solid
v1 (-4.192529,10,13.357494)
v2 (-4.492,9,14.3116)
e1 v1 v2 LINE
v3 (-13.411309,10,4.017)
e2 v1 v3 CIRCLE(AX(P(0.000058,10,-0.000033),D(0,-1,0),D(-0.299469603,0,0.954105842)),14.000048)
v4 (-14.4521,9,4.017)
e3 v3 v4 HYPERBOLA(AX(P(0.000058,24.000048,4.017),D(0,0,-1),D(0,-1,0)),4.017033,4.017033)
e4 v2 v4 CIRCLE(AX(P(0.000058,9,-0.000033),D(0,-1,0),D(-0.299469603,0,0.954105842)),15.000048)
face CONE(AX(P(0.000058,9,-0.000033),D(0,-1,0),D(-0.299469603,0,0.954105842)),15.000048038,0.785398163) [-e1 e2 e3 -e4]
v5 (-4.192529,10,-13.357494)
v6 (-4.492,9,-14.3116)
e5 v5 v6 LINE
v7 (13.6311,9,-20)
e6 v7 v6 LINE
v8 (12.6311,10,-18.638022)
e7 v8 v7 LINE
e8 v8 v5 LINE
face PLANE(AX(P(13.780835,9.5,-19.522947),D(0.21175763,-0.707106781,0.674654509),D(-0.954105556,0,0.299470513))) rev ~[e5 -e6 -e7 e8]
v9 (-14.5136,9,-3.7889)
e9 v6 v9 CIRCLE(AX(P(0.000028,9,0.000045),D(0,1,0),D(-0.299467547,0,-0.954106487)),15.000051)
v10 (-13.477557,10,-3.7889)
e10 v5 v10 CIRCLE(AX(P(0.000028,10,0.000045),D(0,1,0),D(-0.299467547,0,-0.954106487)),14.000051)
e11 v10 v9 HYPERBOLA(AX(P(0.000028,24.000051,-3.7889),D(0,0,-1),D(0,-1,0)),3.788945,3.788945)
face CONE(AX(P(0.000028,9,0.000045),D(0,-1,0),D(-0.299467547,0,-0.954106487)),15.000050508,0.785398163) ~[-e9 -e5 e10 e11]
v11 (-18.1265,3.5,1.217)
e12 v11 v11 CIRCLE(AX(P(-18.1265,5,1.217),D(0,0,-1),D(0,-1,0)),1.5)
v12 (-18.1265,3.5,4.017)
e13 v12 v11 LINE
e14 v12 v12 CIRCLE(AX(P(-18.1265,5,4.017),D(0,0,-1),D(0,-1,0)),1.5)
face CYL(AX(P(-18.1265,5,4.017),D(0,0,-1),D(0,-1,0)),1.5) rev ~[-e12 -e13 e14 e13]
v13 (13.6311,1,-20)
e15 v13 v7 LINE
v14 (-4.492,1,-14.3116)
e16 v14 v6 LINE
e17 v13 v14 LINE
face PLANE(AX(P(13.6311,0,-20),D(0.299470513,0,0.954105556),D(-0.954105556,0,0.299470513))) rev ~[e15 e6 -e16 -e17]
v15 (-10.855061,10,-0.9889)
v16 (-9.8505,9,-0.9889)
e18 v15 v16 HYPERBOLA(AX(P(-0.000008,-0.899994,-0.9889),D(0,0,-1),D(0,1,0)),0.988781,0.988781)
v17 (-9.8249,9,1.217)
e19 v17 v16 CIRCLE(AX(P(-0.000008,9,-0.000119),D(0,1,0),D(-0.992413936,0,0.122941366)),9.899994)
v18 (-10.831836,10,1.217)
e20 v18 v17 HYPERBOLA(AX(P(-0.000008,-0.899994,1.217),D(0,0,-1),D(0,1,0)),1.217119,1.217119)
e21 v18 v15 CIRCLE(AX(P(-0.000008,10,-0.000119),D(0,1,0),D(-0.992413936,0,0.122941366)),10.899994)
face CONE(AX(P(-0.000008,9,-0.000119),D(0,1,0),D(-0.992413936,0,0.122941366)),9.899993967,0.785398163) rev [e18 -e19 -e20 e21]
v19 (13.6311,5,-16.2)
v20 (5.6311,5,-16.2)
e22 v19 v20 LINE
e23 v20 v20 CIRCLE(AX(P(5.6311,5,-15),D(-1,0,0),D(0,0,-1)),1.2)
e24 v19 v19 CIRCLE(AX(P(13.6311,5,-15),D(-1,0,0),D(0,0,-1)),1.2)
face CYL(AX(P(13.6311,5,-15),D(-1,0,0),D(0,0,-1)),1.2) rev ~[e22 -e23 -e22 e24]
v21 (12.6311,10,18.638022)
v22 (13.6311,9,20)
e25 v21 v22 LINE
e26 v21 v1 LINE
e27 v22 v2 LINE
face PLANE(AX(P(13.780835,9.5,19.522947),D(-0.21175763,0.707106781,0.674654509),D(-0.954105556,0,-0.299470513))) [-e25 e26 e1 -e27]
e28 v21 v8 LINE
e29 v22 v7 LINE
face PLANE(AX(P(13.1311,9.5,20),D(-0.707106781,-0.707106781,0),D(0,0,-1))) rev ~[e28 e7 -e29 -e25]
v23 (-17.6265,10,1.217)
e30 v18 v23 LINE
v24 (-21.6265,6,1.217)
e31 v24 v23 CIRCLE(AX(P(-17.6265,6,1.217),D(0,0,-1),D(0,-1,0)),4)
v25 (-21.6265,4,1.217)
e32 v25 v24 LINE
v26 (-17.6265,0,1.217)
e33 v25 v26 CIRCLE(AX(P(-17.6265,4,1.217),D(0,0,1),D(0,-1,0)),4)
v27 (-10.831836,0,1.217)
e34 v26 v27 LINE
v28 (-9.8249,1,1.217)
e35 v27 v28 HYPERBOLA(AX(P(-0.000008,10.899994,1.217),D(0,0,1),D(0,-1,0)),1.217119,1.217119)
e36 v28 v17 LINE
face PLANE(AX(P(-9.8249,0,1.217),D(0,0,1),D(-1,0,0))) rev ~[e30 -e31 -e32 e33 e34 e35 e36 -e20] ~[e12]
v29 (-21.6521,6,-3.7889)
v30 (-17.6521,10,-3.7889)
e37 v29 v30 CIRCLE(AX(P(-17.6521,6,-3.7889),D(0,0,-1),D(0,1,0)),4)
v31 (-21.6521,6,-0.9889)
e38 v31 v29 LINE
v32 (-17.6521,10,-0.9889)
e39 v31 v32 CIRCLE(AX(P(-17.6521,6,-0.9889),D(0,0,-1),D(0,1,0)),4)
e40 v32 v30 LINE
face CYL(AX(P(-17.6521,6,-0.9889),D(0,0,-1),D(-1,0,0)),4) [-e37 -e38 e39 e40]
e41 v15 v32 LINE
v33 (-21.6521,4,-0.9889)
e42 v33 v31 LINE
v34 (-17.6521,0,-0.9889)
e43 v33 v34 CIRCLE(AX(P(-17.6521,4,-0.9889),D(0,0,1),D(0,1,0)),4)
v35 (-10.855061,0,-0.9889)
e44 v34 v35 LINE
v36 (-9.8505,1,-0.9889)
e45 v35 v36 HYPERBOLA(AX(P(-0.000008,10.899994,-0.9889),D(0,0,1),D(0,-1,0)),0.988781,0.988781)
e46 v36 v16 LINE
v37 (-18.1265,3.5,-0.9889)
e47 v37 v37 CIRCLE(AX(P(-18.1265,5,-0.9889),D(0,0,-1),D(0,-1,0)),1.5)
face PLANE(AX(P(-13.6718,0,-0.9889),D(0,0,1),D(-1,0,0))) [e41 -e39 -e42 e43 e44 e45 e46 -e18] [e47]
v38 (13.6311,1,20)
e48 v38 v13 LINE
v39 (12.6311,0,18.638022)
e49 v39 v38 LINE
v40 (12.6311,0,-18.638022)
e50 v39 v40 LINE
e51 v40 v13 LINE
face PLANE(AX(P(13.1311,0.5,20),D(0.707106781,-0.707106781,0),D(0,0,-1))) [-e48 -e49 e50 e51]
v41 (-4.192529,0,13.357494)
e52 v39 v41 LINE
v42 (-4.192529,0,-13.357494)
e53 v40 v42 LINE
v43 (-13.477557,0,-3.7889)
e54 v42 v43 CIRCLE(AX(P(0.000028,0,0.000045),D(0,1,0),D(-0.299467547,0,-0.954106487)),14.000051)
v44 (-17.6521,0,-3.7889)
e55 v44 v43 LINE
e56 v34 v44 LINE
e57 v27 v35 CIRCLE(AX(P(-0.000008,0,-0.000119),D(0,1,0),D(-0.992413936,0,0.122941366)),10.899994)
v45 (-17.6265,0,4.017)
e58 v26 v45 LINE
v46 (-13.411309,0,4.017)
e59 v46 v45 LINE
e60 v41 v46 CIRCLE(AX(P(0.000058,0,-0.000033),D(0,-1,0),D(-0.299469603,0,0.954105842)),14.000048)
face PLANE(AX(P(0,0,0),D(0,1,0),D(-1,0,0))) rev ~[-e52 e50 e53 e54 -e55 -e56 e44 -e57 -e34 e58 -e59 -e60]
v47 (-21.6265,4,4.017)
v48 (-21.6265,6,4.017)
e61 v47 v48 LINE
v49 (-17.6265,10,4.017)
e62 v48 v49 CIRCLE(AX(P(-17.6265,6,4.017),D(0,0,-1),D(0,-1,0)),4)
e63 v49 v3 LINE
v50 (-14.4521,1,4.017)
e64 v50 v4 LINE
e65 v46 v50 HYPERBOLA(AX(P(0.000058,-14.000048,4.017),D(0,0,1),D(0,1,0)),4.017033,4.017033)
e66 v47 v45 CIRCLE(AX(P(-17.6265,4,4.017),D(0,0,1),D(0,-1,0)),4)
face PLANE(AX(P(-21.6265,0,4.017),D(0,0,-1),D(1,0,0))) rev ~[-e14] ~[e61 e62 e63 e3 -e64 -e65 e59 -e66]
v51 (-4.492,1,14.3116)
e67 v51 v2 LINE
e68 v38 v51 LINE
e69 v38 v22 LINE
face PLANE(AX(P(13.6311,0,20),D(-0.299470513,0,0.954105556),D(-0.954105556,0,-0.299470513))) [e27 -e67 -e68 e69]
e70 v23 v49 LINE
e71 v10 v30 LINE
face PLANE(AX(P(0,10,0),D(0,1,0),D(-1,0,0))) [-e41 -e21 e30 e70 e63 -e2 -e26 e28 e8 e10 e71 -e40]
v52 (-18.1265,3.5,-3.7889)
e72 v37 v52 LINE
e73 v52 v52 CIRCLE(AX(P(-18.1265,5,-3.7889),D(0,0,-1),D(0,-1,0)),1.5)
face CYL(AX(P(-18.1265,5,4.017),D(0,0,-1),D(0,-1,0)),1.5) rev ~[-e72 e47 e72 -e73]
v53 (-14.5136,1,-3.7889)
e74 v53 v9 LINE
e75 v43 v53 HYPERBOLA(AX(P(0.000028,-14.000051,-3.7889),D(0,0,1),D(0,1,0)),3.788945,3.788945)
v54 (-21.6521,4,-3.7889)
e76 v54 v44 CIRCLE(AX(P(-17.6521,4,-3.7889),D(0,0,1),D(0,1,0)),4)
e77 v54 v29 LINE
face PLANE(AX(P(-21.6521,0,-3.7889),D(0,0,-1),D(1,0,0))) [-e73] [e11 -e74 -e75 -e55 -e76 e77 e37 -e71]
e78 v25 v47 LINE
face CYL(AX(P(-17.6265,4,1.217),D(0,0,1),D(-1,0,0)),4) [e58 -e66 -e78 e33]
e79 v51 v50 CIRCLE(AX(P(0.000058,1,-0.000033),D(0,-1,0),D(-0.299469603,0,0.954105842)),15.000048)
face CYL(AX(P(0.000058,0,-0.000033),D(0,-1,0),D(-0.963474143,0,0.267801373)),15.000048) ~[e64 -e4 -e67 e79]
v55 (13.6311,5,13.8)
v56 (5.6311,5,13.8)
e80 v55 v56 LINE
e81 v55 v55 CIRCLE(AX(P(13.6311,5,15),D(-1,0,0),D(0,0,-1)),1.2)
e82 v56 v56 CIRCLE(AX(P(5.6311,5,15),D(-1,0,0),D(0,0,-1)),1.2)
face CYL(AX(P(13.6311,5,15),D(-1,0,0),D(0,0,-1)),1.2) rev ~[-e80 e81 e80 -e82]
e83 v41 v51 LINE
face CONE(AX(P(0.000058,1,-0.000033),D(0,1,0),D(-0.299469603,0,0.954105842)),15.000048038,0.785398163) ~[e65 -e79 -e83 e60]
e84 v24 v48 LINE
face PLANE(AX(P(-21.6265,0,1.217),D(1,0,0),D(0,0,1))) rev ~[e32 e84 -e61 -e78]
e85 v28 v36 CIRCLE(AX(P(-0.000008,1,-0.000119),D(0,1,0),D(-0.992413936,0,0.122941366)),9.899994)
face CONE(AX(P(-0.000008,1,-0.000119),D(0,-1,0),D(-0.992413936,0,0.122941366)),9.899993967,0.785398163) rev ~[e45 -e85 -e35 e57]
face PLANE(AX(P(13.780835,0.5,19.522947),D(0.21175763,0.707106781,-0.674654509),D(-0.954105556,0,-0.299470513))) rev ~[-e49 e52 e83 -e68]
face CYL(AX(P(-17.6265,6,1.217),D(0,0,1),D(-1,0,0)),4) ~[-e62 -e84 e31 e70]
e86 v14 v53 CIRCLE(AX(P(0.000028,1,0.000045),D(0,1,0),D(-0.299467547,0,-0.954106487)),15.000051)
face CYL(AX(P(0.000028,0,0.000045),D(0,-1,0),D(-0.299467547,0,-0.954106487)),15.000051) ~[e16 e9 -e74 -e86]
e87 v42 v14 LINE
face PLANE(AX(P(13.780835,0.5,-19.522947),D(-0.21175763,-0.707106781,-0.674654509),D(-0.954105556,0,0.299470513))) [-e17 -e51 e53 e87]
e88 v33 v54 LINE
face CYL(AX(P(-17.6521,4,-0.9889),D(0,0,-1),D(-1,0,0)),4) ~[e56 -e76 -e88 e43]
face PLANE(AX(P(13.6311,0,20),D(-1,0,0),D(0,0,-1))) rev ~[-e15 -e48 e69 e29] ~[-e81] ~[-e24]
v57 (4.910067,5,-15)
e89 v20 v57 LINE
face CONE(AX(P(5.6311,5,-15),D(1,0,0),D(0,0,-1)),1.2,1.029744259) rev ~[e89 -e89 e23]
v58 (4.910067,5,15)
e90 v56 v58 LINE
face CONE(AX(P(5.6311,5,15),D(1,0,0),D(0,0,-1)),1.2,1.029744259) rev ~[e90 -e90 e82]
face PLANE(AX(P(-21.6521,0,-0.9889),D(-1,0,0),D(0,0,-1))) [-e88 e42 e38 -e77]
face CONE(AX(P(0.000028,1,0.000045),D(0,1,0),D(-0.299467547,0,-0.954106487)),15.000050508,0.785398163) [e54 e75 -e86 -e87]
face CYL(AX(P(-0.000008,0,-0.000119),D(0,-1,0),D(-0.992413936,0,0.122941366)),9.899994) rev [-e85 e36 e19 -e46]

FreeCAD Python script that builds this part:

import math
import FreeCAD as App
import Part
import Sketcher
from FreeCAD import Vector
Q = App.Units.Quantity


def edges_at(feature, points):
    """Names of the edges that pass closest to the given points."""
    edges = feature.Shape.Edges
    near = lambda p: min(range(len(edges)), key=lambda i: edges[i].distToShape(Part.Vertex(*p))[0])
    return sorted({f"Edge{near(p) + 1}" for p in points})

doc = App.newDocument("Part")
body = doc.addObject("PartDesign::Body", "Body")

# Sketch on XZ plane
sketch1 = doc.addObject("Sketcher::SketchObject", "Sketch")
body.addObject(sketch1)
sketch1.AttachmentSupport = (doc.XZ_Plane, [""])
sketch1.MapMode = "FlatFace"
sketch1.addGeometry([
    Part.ArcOfCircle(Part.Circle(Vector(0, 0, 0), Vector(0, 0, 1), 9.899987), math.radians(-174.267236), math.radians(172.9388)),  # 0
    Part.LineSegment(Vector(-9.8249, 1.217, 0), Vector(-21.6265, 1.217, 0)),  # 1
    Part.LineSegment(Vector(-21.6265, 1.217, 0), Vector(-21.6265, 4.017, 0)),  # 2
    Part.LineSegment(Vector(-21.6265, 4.017, 0), Vector(-14.4521, 4.017, 0)),  # 3
    Part.ArcOfCircle(Part.Circle(Vector(0, 0, 0), Vector(0, 0, 1), 14.999999), math.radians(107.425574), math.radians(164.466586)),  # 4
    Part.LineSegment(Vector(-4.492, 14.3116, 0), Vector(13.6311, 20, 0)),  # 5
    Part.LineSegment(Vector(13.6311, 20, 0), Vector(13.6311, -20, 0)),  # 6
    Part.LineSegment(Vector(13.6311, -20, 0), Vector(-4.492, -14.3116, 0)),  # 7
    Part.ArcOfCircle(Part.Circle(Vector(0, 0, 0), Vector(0, 0, 1), 14.999999), math.radians(-165.368986), math.radians(-107.425574)),  # 8
    Part.LineSegment(Vector(-14.5136, -3.7889, 0), Vector(-21.6521, -3.7889, 0)),  # 9
    Part.LineSegment(Vector(-21.6521, -3.7889, 0), Vector(-21.6521, -0.9889, 0)),  # 10
    Part.LineSegment(Vector(-21.6521, -0.9889, 0), Vector(-9.8505, -0.9889, 0)),  # 11
], False)
sketch1.addConstraint([
    Sketcher.Constraint("Coincident", 0, 2, 1, 1),
    Sketcher.Constraint("Coincident", 1, 2, 2, 1),
    Sketcher.Constraint("Coincident", 2, 2, 3, 1),
    Sketcher.Constraint("Coincident", 3, 2, 4, 2),
    Sketcher.Constraint("Tangent", 4, 1, 5, 1),
    Sketcher.Constraint("Coincident", 5, 2, 6, 1),
    Sketcher.Constraint("Coincident", 6, 2, 7, 1),
    Sketcher.Constraint("Tangent", 7, 2, 8, 2),
    Sketcher.Constraint("Coincident", 8, 1, 9, 1),
    Sketcher.Constraint("Coincident", 9, 2, 10, 1),
    Sketcher.Constraint("Coincident", 10, 2, 11, 1),
    Sketcher.Constraint("Coincident", 11, 2, 0, 1),
    Sketcher.Constraint("Horizontal", 1),
    Sketcher.Constraint("Vertical", 2),
    Sketcher.Constraint("Horizontal", 3),
    Sketcher.Constraint("Vertical", 6),
    Sketcher.Constraint("Horizontal", 9),
    Sketcher.Constraint("Vertical", 10),
    Sketcher.Constraint("Horizontal", 11),
    Sketcher.Constraint("Coincident", 0, 3, -1, 1),
    Sketcher.Constraint("Coincident", 4, 3, -1, 1),
    Sketcher.Constraint("Coincident", 8, 3, -1, 1),
    Sketcher.Constraint("Equal", 4, 8),
    Sketcher.Constraint("Vertical", 4, 1, 7, 2),
    Sketcher.Constraint("Equal", 1, 11),
    Sketcher.Constraint("Equal", 2, 10),
    Sketcher.Constraint("Radius", 4, Q("15 mm")),
    Sketcher.Constraint("Radius", 0, Q("9.9 mm")),
    Sketcher.Constraint("DistanceY", 6, 2, 6, 1, Q("40 mm")),
    Sketcher.Constraint("DistanceY", 2, 1, 2, 2, Q("2.8 mm")),
    Sketcher.Constraint("DistanceX", 9, 2, 3, 2, Q("7.2 mm")),
    Sketcher.Constraint("DistanceX", 3, 2, 4, 1, Q("9.96 mm")),
    Sketcher.Constraint("DistanceX", 1, 2, 1, 1, Q("11.8016 mm")),
    Sketcher.Constraint("DistanceX", 3, 1, 3, 2, Q("7.1744 mm")),
])
pad1 = doc.addObject("PartDesign::Pad", "Pad")
body.addObject(pad1)
pad1.Profile = sketch1
pad1.Length = 10
pad1.Reversed = True
doc.recompute()

fillet = doc.addObject("PartDesign::Fillet", "Fillet")
body.addObject(fillet)
fillet.Base = (pad1, edges_at(pad1, [
    (-21.627, 10, 2.617),
    (-21.652, 10, -2.389),
    (-21.627, 0, 2.617),
    (-21.652, 0, -2.389),
]))
fillet.Radius = 4

# Sketch on XY plane
sketch2 = doc.addObject("Sketcher::SketchObject", "Sketch001")
body.addObject(sketch2)
sketch2.AttachmentSupport = (doc.XY_Plane, [""])
sketch2.MapMode = "FlatFace"
sketch2.AttachmentOffset = App.Placement(Vector(0, 0, 4.017), App.Rotation())
sketch2.addGeometry(Part.Circle(Vector(-18.1265, 5, 0), Vector(0, 0, 1), 1.5), False)
sketch2.addConstraint([
    Sketcher.Constraint("Diameter", 0, Q("3 mm")),
    Sketcher.Constraint("DistanceY", -1, 1, 0, 3, Q("5 mm")),
    Sketcher.Constraint("DistanceX", 0, 3, -1, 1, Q("18.1265 mm")),
])
doc.recompute()
hole = doc.addObject("PartDesign::Hole", "Hole")
body.addObject(hole)
hole.Profile = sketch2
hole.ThreadType = "None"
hole.Diameter = 3
hole.DepthType = "Dimension"
hole.Depth = 8
hole.DrillPoint = "Angled"
hole.DrillPointAngle = 118
doc.recompute()

chamfer = doc.addObject("PartDesign::Chamfer", "Chamfer")
body.addObject(chamfer)
chamfer.Base = (hole, edges_at(hole, [
    (9.899, 10, -0.115),
    (9.899, 0, -0.115),
    (4.57, 10, 17.156),
    (13.631, 10, 0),
    (4.57, 10, -17.156),
    (-10.862, 10, -10.345),
    (-10.78, 10, 10.43),
    (4.57, 0, 17.156),
    (13.631, 0, 0),
    (4.57, 0, -17.156),
    (-10.862, 0, -10.345),
    (-10.78, 0, 10.43),
]))
chamfer.Size = 1

# Sketch on YZ plane
sketch3 = doc.addObject("Sketcher::SketchObject", "Sketch002")
body.addObject(sketch3)
sketch3.AttachmentSupport = (doc.YZ_Plane, [""])
sketch3.MapMode = "FlatFace"
sketch3.AttachmentOffset = App.Placement(Vector(0, 0, 13.6311), App.Rotation())
sketch3.addGeometry([
    Part.Circle(Vector(5, 15, 0), Vector(0, 0, 1), 1.2),
    Part.Circle(Vector(5, -15, 0), Vector(0, 0, 1), 1.2),
], False)
sketch3.addConstraint([
    Sketcher.Constraint("Equal", 0, 1),
    Sketcher.Constraint("Symmetric", 0, 3, 1, 3, -1),
    Sketcher.Constraint("Diameter", 0, Q("2.4 mm")),
    Sketcher.Constraint("DistanceX", -1, 1, 0, 3, Q("5 mm")),
    Sketcher.Constraint("DistanceY", -1, 1, 0, 3, Q("15 mm")),
])
doc.recompute()
hole2 = doc.addObject("PartDesign::Hole", "Hole001")
body.addObject(hole2)
hole2.Profile = sketch3
hole2.ThreadType = "None"
hole2.Diameter = 2.4
hole2.DepthType = "Dimension"
hole2.Depth = 8
hole2.DrillPoint = "Angled"
hole2.DrillPointAngle = 118

doc.recompute()
